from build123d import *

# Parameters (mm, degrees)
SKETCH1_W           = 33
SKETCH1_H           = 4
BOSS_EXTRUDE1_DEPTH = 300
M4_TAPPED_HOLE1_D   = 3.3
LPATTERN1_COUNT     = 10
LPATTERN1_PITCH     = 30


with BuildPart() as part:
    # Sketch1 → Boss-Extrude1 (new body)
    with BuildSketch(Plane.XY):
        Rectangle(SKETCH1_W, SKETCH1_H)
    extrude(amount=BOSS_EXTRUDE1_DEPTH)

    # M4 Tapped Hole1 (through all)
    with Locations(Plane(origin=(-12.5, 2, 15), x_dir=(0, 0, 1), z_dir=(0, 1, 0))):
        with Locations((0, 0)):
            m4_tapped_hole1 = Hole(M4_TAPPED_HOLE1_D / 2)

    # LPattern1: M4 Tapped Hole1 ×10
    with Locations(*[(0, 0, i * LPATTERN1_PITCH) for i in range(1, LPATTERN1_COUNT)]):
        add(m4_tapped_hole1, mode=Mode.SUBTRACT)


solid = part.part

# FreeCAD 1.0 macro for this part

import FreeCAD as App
import Part
import Sketcher

V = App.Vector


def add_polygon(sketch, points):
    """Adds a closed chain of lines whose ends are joined by coincident constraints."""
    first, n = sketch.GeometryCount, len(points)
    for a, b in zip(points, points[1:] + points[:1]):
        sketch.addGeometry(Part.LineSegment(App.Vector(*a, 0), App.Vector(*b, 0)), False)
    for i in range(n):
        sketch.addConstraint(Sketcher.Constraint("Coincident", first + i, 2, first + (i + 1) % n, 1))

doc = App.newDocument("Part")
params = doc.addObject("Spreadsheet::Sheet", "Params")
for row, (alias, value) in enumerate([
    ("sketch1_width", "33 mm"),
    ("sketch1_height", "4 mm"),
    ("pad1_length", "300 mm"),
    ("sketch2_diameter", "3.3 mm"),
    ("hole_diameter", "3.3 mm"),
    ("linearpattern_pitch", "30 mm"),
], start=1):
    params.set(f"A{row}", alias)
    params.set(f"B{row}", "=" + value)
    params.setAlias(f"B{row}", alias)

body = doc.addObject("PartDesign::Body", "Body")

# Sketch on XY plane
sketch1 = doc.addObject("Sketcher::SketchObject", "Sketch")
body.addObject(sketch1)
sketch1.AttachmentSupport = (doc.XY_Plane, [""])
sketch1.MapMode = "FlatFace"
add_polygon(sketch1, [(-16.5, 2), (-16.5, -2), (16.5, -2), (16.5, 2)])  # lines 0-3
sketch1.addConstraint([
    Sketcher.Constraint("Vertical", 0),
    Sketcher.Constraint("Horizontal", 1),
    Sketcher.Constraint("Vertical", 2),
    Sketcher.Constraint("Horizontal", 3),
    Sketcher.Constraint("Symmetric", 0, 2, 2, 2, -1, 1),
    Sketcher.Constraint("DistanceX", 1, 1, 1, 2, 33.0),
    Sketcher.Constraint("DistanceY", 0, 2, 0, 1, 4.0),
])
sketch1.setExpression("Constraints[9]", "Params.sketch1_width")
sketch1.setExpression("Constraints[10]", "Params.sketch1_height")
pad1 = doc.addObject("PartDesign::Pad", "Pad")
body.addObject(pad1)
pad1.Profile = sketch1
pad1.setExpression("Length", "Params.pad1_length")

# Sketch on XZ plane
sketch2 = doc.addObject("Sketcher::SketchObject", "Sketch001")
body.addObject(sketch2)
sketch2.AttachmentSupport = (doc.XZ_Plane, [""])
sketch2.MapMode = "FlatFace"
sketch2.AttachmentOffset = App.Placement(V(0, 0, -2), App.Rotation())
sketch2.addGeometry(Part.Circle(V(-12.5, 15, 0), V(0, 0, 1), 1.6), False)
sketch2.addConstraint([
    Sketcher.Constraint("Diameter", 0, 3.3),
    Sketcher.Constraint("DistanceY", -1, 1, 0, 3, 15.0),
    Sketcher.Constraint("DistanceX", 0, 3, -1, 1, 12.5),
])
sketch2.setExpression("Constraints[0]", "Params.sketch2_diameter")
doc.recompute()
hole = doc.addObject("PartDesign::Hole", "Hole")
body.addObject(hole)
hole.Profile = sketch2
hole.ThreadType = "None"
hole.setExpression("Diameter", "Params.hole_diameter")
hole.DepthType = "ThroughAll"
hole.Reversed = True
doc.recompute()

linearpattern = doc.addObject("PartDesign::LinearPattern", "LinearPattern")
body.addObject(linearpattern)
linearpattern.Originals = [hole]
linearpattern.Direction = (doc.Z_Axis, [""])
linearpattern.Mode = "offset"
linearpattern.setExpression("Offset", "Params.linearpattern_pitch")
linearpattern.Occurrences = 10
body.Tip = linearpattern

doc.recompute()
